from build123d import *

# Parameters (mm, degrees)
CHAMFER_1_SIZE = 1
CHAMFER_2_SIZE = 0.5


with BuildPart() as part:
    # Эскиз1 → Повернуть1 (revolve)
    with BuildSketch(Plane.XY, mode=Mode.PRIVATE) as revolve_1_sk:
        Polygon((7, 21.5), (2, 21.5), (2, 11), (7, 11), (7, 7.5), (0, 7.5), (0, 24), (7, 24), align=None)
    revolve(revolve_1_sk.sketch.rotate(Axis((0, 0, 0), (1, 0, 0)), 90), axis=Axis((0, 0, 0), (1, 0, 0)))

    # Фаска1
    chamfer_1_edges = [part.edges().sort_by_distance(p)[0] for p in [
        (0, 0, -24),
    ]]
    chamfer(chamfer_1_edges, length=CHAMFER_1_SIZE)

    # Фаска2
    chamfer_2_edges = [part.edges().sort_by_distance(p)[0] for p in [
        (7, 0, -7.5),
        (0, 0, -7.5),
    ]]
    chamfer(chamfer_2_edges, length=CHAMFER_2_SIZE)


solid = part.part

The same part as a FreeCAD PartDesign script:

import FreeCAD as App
import Part
import Sketcher
Q = App.Units.Quantity


def edges_at(feature, points):
    """Names of the edges that pass closest to the given points."""
    edges = feature.Shape.Edges
    near = lambda p: min(range(len(edges)), key=lambda i: edges[i].distToShape(Part.Vertex(*p))[0])
    return sorted({f"Edge{near(p) + 1}" for p in points})

doc = App.newDocument("Part")
params = doc.addObject("Spreadsheet::Sheet", "Params")
for row, (alias, value) in enumerate([
    ("sketch1_width", "5 mm"),
    ("sketch1_width2", "7 mm"),
    ("sketch1_height", "2.5 mm"),
    ("sketch1_height2", "16.5 mm"),
    ("sketch1_height3", "3.5 mm"),
    ("revolution_angle", "360 deg"),
    ("chamfer_size", "1 mm"),
    ("chamfer2_size", "0.5 mm"),
], start=1):
    params.set(f"A{row}", alias)
    params.set(f"B{row}", "=" + value)
    params.setAlias(f"B{row}", alias)

body = doc.addObject("PartDesign::Body", "Body")

sketch1 = body.newObject("Sketcher::SketchObject", "Sketch")
sketch1.AttachmentSupport = (doc.getObject("XY_Plane"), [""])
sketch1.MapMode = "FlatFace"
sketch1.addGeometry([
    Part.LineSegment(App.Vector(2, 21.5, 0), App.Vector(7, 21.5, 0)),
    Part.LineSegment(App.Vector(7, 21.5, 0), App.Vector(7, 24, 0)),
    Part.LineSegment(App.Vector(7, 24, 0), App.Vector(0, 24, 0)),
    Part.LineSegment(App.Vector(0, 24, 0), App.Vector(0, 7.5, 0)),
    Part.LineSegment(App.Vector(0, 7.5, 0), App.Vector(7, 7.5, 0)),
    Part.LineSegment(App.Vector(7, 7.5, 0), App.Vector(7, 11, 0)),
    Part.LineSegment(App.Vector(7, 11, 0), App.Vector(2, 11, 0)),
    Part.LineSegment(App.Vector(2, 11, 0), App.Vector(2, 21.5, 0)),
], False)
sketch1.addConstraint([
    Sketcher.Constraint("Coincident", 0, 2, 1, 1),
    Sketcher.Constraint("Coincident", 1, 2, 2, 1),
    Sketcher.Constraint("Coincident", 2, 2, 3, 1),
    Sketcher.Constraint("Coincident", 3, 2, 4, 1),
    Sketcher.Constraint("Coincident", 4, 2, 5, 1),
    Sketcher.Constraint("Coincident", 5, 2, 6, 1),
    Sketcher.Constraint("Coincident", 6, 2, 7, 1),
    Sketcher.Constraint("Coincident", 7, 2, 0, 1),
    Sketcher.Constraint("Horizontal", 0),
    Sketcher.Constraint("Vertical", 1),
    Sketcher.Constraint("Horizontal", 2),
    Sketcher.Constraint("Vertical", 3),
    Sketcher.Constraint("Horizontal", 4),
    Sketcher.Constraint("Vertical", 5),
    Sketcher.Constraint("Horizontal", 6),
    Sketcher.Constraint("Vertical", 7),
    Sketcher.Constraint("PointOnObject", 2, 2, -2),
    Sketcher.Constraint("Vertical", 1, 2, 4, 2),
    Sketcher.Constraint("DistanceX", 0, 1, 0, 2, Q("5 mm")),
    Sketcher.Constraint("DistanceX", 2, 2, 2, 1, Q("7 mm")),
    Sketcher.Constraint("DistanceY", 1, 1, 1, 2, Q("2.5 mm")),
    Sketcher.Constraint("DistanceY", 3, 2, 3, 1, Q("16.5 mm")),
    Sketcher.Constraint("DistanceY", 5, 1, 5, 2, Q("3.5 mm")),
    Sketcher.Constraint("DistanceY", -1, 1, 1, 2, Q("24 mm")),
])
sketch1.setExpression("Constraints[18]", "Params.sketch1_width")
sketch1.setExpression("Constraints[19]", "Params.sketch1_width2")
sketch1.setExpression("Constraints[20]", "Params.sketch1_height")
sketch1.setExpression("Constraints[21]", "Params.sketch1_height2")
sketch1.setExpression("Constraints[22]", "Params.sketch1_height3")
revolution = body.newObject("PartDesign::Revolution", "Revolution")
revolution.Profile = sketch1
revolution.ReferenceAxis = (sketch1, ["H_Axis"])
revolution.setExpression("Angle", "Params.revolution_angle")
doc.recompute()

chamfer = body.newObject("PartDesign::Chamfer", "Chamfer")
chamfer.Base = (revolution, edges_at(revolution, [(0, 0, -24)]))
chamfer.setExpression("Size", "Params.chamfer_size")
doc.recompute()

chamfer2 = body.newObject("PartDesign::Chamfer", "Chamfer001")
chamfer2.Base = (chamfer, edges_at(chamfer, [(7, 0, -7.5), (0, 0, -7.5)]))
chamfer2.setExpression("Size", "Params.chamfer2_size")

doc.recompute()
